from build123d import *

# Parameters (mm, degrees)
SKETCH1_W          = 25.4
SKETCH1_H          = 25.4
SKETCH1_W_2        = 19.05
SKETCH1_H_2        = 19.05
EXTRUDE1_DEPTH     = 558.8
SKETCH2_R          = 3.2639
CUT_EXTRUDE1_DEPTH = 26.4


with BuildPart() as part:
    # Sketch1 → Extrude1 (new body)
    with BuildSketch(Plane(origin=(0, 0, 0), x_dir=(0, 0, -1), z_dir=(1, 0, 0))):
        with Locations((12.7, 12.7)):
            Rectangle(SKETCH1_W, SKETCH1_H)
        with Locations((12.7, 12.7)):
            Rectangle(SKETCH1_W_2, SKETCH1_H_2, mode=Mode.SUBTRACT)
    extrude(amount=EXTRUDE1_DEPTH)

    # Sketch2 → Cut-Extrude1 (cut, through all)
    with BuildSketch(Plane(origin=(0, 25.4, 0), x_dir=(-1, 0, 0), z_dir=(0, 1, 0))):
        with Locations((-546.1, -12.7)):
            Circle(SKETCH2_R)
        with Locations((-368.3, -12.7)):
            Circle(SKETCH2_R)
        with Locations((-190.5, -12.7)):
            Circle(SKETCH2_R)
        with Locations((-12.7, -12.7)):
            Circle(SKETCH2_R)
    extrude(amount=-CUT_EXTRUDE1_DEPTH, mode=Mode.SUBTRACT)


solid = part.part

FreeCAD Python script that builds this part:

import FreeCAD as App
import Part
import Sketcher
from FreeCAD import Vector
Q = App.Units.Quantity

doc = App.newDocument("Part")
body = doc.addObject("PartDesign::Body", "Body")

# Sketch on YZ plane
sketch1 = body.newObject("Sketcher::SketchObject", "Sketch")
sketch1.AttachmentSupport = (doc.getObject("YZ_Plane"), [""])
sketch1.MapMode = "FlatFace"
sketch1.addGeometry([
    Part.LineSegment(Vector(25, 0, 0), Vector(0, 0, 0)),  # 0
    Part.LineSegment(Vector(0, 0, 0), Vector(0, -25, 0)),  # 1
    Part.LineSegment(Vector(0, -25, 0), Vector(25, -25, 0)),  # 2
    Part.LineSegment(Vector(25, -25, 0), Vector(25, 0, 0)),  # 3
    Part.LineSegment(Vector(3, -22, 0), Vector(3, -3, 0)),  # 4
    Part.LineSegment(Vector(3, -3, 0), Vector(22, -3, 0)),  # 5
    Part.LineSegment(Vector(22, -3, 0), Vector(22, -22, 0)),  # 6
    Part.LineSegment(Vector(22, -22, 0), Vector(3, -22, 0)),  # 7
], False)
sketch1.addConstraint([
    Sketcher.Constraint("Coincident", 0, 2, 1, 1),
    Sketcher.Constraint("Coincident", 1, 2, 2, 1),
    Sketcher.Constraint("Coincident", 2, 2, 3, 1),
    Sketcher.Constraint("Coincident", 3, 2, 0, 1),
    Sketcher.Constraint("Coincident", 4, 2, 5, 1),
    Sketcher.Constraint("Coincident", 5, 2, 6, 1),
    Sketcher.Constraint("Coincident", 6, 2, 7, 1),
    Sketcher.Constraint("Coincident", 7, 2, 4, 1),
    Sketcher.Constraint("Horizontal", 0),
    Sketcher.Constraint("Vertical", 1),
    Sketcher.Constraint("Horizontal", 2),
    Sketcher.Constraint("Vertical", 3),
    Sketcher.Constraint("Vertical", 4),
    Sketcher.Constraint("Horizontal", 5),
    Sketcher.Constraint("Vertical", 6),
    Sketcher.Constraint("Horizontal", 7),
    Sketcher.Constraint("Coincident", 0, 2, -1, 1),
    Sketcher.Constraint("Equal", 2, 1),
    Sketcher.Constraint("Equal", 7, 4),
    Sketcher.Constraint("DistanceX", 0, 2, 0, 1, Q("1 in")),
    Sketcher.Constraint("DistanceX", 5, 1, 5, 2, Q("0.75 in")),
    Sketcher.Constraint("DistanceX", -1, 1, 4, 2, Q("0.125 in")),
    Sketcher.Constraint("DistanceY", 4, 2, -1, 1, Q("0.125 in")),
])
pad1 = body.newObject("PartDesign::Pad", "Pad")
pad1.Profile = sketch1
pad1.Length = Q("22 in")

# Sketch on XZ plane
sketch2 = body.newObject("Sketcher::SketchObject", "Sketch001")
sketch2.AttachmentSupport = (doc.getObject("XZ_Plane"), [""])
sketch2.MapMode = "FlatFace"
sketch2.AttachmentOffset = App.Placement(Vector(0, 0, -1 * 25.4), App.Rotation())
sketch2.addGeometry([
    Part.Circle(Vector(546.1, -12.7, 0), Vector(0, 0, 1), 3.3),
    Part.Circle(Vector(368.3, -12.7, 0), Vector(0, 0, 1), 3.3),
    Part.Circle(Vector(190.5, -12.7, 0), Vector(0, 0, 1), 3.3),
    Part.Circle(Vector(12.7, -12.7, 0), Vector(0, 0, 1), 3.3),
], False)
sketch2.addConstraint([
    Sketcher.Constraint("Equal", 0, 1),
    Sketcher.Constraint("Equal", 1, 2),
    Sketcher.Constraint("Equal", 2, 3),
    Sketcher.Constraint("Horizontal", 0, 3, 1, 3),
    Sketcher.Constraint("Horizontal", 1, 3, 2, 3),
    Sketcher.Constraint("Horizontal", 2, 3, 3, 3),
    Sketcher.Constraint("Diameter", 0, Q("0.257 in")),
    Sketcher.Constraint("DistanceX", 1, 3, 0, 3, Q("7 in")),
    Sketcher.Constraint("DistanceX", 2, 3, 1, 3, Q("7 in")),
    Sketcher.Constraint("DistanceX", 3, 3, 2, 3, Q("7 in")),
    Sketcher.Constraint("DistanceX", -1, 1, 0, 3, Q("21.5 in")),
    Sketcher.Constraint("DistanceY", 0, 3, -1, 1, Q("0.5 in")),
])
pocket1 = body.newObject("PartDesign::Pocket", "Pocket")
pocket1.Profile = sketch2
pocket1.Type = "ThroughAll"
pocket1.Reversed = True

doc.recompute()
